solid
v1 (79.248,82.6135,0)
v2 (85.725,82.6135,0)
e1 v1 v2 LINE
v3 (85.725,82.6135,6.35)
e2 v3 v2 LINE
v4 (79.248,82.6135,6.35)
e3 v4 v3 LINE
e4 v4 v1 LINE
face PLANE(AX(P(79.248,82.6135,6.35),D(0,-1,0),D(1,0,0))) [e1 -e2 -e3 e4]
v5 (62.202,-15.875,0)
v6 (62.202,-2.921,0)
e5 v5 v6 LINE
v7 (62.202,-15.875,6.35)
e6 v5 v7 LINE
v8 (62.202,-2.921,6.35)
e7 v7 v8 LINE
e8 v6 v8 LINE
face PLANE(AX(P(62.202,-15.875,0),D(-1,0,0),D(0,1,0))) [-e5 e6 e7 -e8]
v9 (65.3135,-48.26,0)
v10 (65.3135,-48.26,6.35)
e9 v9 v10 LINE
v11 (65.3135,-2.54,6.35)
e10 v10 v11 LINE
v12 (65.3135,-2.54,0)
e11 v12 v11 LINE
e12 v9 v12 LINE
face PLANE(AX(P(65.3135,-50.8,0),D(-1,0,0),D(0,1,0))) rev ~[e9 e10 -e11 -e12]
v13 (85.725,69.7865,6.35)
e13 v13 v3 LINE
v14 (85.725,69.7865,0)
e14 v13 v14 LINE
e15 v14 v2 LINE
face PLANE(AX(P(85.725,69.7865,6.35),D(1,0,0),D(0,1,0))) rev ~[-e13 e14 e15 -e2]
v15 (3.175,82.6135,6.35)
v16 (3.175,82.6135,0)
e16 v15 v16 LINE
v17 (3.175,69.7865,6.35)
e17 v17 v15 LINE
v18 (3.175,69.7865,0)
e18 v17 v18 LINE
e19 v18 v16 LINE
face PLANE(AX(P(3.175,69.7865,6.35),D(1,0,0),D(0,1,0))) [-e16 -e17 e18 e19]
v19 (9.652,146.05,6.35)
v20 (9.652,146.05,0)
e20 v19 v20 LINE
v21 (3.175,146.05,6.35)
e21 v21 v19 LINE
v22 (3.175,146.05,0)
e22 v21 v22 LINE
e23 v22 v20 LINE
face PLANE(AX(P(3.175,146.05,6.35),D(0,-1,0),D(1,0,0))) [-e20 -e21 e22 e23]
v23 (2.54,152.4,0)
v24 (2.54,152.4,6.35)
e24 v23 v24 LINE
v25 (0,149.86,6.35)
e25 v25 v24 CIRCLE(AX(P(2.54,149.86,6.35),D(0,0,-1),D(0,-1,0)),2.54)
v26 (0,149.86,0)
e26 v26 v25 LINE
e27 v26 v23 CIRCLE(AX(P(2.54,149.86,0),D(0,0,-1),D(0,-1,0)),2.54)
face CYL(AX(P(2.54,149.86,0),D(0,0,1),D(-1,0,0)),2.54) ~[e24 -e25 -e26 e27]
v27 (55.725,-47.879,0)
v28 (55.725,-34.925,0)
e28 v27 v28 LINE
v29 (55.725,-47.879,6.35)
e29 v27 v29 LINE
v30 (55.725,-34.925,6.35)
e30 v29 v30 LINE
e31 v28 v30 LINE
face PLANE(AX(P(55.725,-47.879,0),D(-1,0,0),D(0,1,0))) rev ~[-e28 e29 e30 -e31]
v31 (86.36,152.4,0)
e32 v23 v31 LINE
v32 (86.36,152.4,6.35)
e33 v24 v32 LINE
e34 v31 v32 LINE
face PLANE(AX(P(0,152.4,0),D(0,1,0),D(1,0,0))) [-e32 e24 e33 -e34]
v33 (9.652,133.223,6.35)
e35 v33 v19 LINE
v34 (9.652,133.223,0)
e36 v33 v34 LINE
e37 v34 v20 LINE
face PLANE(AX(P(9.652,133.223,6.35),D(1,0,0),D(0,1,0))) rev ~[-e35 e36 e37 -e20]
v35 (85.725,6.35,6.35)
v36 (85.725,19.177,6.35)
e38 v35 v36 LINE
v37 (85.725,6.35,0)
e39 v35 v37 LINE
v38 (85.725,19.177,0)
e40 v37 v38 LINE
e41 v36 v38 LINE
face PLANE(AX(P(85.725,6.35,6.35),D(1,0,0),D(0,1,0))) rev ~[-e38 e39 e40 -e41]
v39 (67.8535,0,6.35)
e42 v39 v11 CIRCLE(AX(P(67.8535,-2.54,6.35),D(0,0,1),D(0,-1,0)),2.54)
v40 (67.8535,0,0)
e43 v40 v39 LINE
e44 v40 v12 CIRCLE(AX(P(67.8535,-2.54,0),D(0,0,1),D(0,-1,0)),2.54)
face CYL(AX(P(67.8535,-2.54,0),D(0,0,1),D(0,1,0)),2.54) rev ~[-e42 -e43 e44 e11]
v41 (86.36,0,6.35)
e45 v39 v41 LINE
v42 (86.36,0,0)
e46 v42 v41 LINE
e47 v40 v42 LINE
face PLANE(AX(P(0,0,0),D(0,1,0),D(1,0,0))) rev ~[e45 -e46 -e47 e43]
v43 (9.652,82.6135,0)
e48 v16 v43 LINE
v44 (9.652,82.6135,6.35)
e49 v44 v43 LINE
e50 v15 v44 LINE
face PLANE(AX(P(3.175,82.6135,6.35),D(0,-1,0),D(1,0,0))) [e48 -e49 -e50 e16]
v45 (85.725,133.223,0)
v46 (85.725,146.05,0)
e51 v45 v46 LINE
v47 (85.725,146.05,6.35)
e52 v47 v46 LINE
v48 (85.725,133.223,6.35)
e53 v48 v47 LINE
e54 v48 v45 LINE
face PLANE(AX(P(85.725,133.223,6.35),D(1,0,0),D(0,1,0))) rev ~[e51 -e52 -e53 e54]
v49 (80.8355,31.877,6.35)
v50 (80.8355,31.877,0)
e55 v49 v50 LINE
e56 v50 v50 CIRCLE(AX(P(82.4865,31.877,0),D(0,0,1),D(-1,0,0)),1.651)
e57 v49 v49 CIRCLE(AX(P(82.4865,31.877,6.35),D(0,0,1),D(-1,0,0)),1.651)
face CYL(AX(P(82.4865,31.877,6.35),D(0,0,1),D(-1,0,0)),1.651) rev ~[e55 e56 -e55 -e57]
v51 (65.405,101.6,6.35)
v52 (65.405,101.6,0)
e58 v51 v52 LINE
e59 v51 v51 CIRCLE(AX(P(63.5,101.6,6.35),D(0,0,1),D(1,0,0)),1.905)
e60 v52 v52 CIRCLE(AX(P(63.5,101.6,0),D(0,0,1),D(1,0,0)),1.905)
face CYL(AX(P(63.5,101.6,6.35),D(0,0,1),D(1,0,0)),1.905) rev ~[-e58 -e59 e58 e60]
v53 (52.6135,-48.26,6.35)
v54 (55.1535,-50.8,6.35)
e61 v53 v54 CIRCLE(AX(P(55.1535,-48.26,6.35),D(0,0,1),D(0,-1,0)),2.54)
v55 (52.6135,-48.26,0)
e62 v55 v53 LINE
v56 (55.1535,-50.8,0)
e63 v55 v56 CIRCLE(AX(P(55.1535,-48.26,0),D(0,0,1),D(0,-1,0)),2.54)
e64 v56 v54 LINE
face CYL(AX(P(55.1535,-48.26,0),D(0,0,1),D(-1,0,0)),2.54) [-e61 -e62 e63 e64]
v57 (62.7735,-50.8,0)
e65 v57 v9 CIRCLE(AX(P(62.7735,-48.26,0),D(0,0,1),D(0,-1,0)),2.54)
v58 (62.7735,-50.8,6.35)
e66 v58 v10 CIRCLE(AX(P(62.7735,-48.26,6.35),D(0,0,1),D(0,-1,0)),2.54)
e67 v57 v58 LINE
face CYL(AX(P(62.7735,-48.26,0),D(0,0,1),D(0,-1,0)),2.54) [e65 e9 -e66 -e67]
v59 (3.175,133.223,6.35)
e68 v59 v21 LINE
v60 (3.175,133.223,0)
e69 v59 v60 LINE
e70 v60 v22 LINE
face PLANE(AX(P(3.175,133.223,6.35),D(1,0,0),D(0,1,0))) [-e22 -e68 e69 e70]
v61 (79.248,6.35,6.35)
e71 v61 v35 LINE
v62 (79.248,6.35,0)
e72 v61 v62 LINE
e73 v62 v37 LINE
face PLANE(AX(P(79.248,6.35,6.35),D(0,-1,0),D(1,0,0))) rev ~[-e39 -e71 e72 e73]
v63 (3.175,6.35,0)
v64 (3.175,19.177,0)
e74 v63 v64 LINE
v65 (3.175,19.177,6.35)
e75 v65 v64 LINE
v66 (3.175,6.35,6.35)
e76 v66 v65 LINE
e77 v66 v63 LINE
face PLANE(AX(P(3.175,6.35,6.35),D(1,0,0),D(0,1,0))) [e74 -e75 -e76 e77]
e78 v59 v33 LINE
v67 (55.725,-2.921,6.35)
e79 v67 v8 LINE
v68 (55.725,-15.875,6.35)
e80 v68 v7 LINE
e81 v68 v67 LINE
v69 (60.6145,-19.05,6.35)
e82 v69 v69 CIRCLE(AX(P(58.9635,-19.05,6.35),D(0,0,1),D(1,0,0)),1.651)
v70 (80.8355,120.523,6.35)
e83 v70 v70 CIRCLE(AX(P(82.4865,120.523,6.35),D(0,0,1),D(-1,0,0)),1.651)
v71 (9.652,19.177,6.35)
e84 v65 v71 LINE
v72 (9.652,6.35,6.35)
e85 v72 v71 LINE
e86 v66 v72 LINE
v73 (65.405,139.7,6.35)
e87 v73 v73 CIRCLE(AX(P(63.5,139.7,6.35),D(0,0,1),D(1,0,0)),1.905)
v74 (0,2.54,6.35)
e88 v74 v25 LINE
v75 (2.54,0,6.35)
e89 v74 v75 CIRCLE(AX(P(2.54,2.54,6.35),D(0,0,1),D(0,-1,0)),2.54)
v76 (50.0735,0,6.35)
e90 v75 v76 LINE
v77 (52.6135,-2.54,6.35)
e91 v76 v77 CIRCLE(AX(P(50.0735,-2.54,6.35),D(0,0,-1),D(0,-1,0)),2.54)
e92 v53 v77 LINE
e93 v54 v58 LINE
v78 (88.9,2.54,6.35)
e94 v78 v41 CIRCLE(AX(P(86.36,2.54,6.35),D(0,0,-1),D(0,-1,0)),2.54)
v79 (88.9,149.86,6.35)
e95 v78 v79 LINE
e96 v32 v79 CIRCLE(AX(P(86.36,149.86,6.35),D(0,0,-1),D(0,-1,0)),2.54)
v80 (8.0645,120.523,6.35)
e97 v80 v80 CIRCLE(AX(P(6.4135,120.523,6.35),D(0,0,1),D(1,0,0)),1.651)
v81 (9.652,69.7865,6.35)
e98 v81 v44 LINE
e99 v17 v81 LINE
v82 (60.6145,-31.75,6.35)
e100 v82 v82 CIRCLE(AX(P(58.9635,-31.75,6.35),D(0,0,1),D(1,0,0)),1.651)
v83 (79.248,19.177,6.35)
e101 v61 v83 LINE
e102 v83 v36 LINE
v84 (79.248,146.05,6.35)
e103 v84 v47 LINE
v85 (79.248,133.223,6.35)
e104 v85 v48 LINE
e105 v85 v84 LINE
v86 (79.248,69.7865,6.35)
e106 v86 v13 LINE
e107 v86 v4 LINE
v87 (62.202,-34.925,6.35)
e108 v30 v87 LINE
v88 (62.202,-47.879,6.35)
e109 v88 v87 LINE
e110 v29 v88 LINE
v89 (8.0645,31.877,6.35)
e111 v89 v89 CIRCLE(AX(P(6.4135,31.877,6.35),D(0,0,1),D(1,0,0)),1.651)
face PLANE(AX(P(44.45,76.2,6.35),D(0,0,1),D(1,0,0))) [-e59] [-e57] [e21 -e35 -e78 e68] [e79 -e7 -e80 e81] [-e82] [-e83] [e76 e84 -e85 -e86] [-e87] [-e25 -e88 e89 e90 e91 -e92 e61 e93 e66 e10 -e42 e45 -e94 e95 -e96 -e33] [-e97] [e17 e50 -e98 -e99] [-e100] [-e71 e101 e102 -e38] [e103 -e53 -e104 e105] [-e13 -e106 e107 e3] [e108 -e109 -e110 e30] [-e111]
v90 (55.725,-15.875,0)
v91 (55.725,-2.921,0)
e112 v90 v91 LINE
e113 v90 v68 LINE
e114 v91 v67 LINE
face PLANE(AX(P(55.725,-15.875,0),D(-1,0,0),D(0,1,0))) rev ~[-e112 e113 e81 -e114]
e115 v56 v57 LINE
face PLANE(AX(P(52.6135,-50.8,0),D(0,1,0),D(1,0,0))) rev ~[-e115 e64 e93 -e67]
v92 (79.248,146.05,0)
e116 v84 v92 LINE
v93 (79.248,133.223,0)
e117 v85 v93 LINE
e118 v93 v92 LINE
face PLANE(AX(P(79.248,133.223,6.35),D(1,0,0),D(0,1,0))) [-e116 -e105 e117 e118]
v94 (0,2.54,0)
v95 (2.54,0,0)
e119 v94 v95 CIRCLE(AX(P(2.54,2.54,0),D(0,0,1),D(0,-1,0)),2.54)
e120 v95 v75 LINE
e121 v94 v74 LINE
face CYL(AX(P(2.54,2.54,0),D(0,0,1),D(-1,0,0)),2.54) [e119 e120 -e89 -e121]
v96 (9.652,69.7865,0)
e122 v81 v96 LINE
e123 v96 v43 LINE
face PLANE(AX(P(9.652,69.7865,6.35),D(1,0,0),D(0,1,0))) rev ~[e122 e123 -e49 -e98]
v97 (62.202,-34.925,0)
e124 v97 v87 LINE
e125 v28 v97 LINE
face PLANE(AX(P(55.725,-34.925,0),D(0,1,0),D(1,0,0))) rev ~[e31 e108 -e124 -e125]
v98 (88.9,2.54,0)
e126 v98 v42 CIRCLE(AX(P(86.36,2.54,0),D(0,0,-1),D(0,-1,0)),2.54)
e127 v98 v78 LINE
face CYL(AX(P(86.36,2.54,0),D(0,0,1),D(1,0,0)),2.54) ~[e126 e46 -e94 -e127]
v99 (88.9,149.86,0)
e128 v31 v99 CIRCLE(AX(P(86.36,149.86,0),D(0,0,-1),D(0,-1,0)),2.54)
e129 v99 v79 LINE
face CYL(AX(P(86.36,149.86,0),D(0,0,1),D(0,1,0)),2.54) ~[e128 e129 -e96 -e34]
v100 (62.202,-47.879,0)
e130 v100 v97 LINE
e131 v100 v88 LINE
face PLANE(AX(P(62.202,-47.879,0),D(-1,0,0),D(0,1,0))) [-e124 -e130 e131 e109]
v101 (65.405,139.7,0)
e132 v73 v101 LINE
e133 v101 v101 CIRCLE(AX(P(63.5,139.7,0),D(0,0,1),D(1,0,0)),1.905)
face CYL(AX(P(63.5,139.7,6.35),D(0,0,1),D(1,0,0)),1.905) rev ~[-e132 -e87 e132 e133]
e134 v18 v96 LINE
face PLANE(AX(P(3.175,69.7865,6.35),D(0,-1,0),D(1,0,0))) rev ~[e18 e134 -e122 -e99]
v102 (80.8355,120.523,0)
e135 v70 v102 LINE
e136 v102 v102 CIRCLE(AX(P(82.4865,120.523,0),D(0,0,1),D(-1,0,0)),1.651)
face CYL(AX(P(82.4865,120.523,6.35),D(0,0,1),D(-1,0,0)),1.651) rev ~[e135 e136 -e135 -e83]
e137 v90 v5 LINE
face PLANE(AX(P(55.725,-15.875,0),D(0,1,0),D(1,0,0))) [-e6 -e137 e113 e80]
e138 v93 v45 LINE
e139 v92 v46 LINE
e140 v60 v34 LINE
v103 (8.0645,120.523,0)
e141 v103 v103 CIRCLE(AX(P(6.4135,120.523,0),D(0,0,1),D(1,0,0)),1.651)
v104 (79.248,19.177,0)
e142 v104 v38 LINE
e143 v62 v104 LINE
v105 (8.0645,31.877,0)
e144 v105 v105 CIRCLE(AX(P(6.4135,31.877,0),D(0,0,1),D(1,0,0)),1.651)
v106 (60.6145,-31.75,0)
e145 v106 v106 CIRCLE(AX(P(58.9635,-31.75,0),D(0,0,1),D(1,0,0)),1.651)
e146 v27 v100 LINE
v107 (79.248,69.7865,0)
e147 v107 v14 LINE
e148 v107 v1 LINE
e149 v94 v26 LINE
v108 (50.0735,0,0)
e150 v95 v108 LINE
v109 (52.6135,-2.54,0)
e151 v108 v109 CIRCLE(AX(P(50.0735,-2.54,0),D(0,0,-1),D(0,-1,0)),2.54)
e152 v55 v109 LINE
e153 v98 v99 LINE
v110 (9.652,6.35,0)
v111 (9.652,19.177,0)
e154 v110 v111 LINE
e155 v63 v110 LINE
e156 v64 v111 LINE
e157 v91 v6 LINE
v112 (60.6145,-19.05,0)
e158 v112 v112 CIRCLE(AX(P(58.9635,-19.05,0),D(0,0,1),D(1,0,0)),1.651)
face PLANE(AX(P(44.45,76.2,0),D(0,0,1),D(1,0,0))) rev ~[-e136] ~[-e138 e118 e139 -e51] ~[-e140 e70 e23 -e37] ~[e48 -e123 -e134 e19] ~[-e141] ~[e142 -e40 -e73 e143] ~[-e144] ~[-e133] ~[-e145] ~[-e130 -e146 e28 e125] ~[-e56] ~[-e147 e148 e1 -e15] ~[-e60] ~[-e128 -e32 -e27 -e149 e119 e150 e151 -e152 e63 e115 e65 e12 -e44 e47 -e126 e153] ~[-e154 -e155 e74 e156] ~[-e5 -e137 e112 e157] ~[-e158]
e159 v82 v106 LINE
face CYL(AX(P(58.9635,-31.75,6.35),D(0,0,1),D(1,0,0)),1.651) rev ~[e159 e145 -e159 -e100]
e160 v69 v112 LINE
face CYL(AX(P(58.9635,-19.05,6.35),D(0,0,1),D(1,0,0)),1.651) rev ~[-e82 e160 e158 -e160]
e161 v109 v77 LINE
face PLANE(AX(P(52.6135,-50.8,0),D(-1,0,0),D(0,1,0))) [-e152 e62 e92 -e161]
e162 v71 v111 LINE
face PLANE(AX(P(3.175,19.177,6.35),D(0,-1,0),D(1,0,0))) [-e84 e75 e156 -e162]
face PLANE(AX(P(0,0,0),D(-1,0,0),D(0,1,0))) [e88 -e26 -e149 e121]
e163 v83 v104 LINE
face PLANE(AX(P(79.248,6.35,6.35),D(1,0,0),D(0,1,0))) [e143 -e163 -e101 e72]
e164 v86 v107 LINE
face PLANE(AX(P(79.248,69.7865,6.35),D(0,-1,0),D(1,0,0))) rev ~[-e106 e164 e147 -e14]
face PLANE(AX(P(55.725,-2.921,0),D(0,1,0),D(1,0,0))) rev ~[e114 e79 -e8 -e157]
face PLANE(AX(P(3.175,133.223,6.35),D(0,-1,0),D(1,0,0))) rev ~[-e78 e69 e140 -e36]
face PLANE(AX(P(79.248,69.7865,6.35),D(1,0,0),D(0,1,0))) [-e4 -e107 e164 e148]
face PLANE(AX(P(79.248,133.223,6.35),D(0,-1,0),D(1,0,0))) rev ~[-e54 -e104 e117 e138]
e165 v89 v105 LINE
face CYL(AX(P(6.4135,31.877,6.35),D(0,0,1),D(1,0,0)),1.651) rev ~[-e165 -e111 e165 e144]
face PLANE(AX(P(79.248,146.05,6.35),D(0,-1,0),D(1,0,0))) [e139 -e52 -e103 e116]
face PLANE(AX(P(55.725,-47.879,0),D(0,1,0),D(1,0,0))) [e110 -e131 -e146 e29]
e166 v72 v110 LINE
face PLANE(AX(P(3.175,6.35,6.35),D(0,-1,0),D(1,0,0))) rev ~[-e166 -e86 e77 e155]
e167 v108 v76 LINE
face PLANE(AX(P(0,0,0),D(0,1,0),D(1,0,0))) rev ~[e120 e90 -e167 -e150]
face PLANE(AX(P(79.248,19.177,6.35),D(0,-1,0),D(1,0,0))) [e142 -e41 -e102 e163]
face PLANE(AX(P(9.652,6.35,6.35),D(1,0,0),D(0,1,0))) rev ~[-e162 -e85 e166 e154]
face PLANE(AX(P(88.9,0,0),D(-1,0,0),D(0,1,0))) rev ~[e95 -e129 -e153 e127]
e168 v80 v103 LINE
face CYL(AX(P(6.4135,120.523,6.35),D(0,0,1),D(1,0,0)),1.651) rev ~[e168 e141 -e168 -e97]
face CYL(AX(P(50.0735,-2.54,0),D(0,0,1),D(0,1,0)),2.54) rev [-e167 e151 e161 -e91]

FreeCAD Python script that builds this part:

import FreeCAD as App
import Part
import Sketcher
Q = App.Units.Quantity


def edges_at(feature, points):
    """Names of the edges that pass closest to the given points."""
    edges = feature.Shape.Edges
    near = lambda p: min(range(len(edges)), key=lambda i: edges[i].distToShape(Part.Vertex(*p))[0])
    return sorted({f"Edge{near(p) + 1}" for p in points})


def add_polygon(sketch, points):
    """Adds a closed chain of lines whose ends are joined by coincident constraints."""
    first, n = sketch.GeometryCount, len(points)
    for a, b in zip(points, points[1:] + points[:1]):
        sketch.addGeometry(Part.LineSegment(App.Vector(*a, 0), App.Vector(*b, 0)), False)
    for i in range(n):
        sketch.addConstraint(Sketcher.Constraint("Coincident", first + i, 2, first + (i + 1) % n, 1))

doc = App.newDocument("Part")
body = doc.addObject("PartDesign::Body", "Body")

# Sketch on XY plane
sketch1 = body.newObject("Sketcher::SketchObject", "Sketch")
sketch1.AttachmentSupport = (doc.getObject("XY_Plane"), [""])
sketch1.MapMode = "FlatFace"
add_polygon(sketch1, [(0, 152), (0, 0), (53, 0), (53, -51), (65, -51), (65, 0), (89, 0), (89, 152)])  # lines 0-7
add_polygon(sketch1, [(56, -16), (56, -3), (62, -3), (62, -16)])  # lines 8-11
add_polygon(sketch1, [(62, -48), (56, -48), (56, -35), (62, -35)])  # lines 12-15
sketch1.addConstraint([
    Sketcher.Constraint("Vertical", 0),
    Sketcher.Constraint("Horizontal", 1),
    Sketcher.Constraint("Vertical", 2),
    Sketcher.Constraint("Horizontal", 3),
    Sketcher.Constraint("Vertical", 4),
    Sketcher.Constraint("Horizontal", 5),
    Sketcher.Constraint("Vertical", 6),
    Sketcher.Constraint("Horizontal", 7),
    Sketcher.Constraint("Vertical", 8),
    Sketcher.Constraint("Horizontal", 9),
    Sketcher.Constraint("Vertical", 10),
    Sketcher.Constraint("Horizontal", 11),
    Sketcher.Constraint("Horizontal", 12),
    Sketcher.Constraint("Vertical", 13),
    Sketcher.Constraint("Horizontal", 14),
    Sketcher.Constraint("Vertical", 15),
    Sketcher.Constraint("Coincident", 0, 2, -1, 1),
    Sketcher.Constraint("PointOnObject", 4, 2, -1),
    Sketcher.Constraint("Vertical", 11, 2, 12, 2),
    Sketcher.Constraint("Vertical", 10, 2, 14, 2),
    Sketcher.Constraint("Equal", 10, 13),
    Sketcher.Constraint("DistanceY", 0, 2, 0, 1, Q("6 in")),
    Sketcher.Constraint("DistanceY", 2, 2, 2, 1, Q("2 in")),
    Sketcher.Constraint("DistanceX", 3, 1, 3, 2, Q("0.5 in")),
    Sketcher.Constraint("DistanceX", 7, 2, 7, 1, Q("3.5 in")),
    Sketcher.Constraint("DistanceY", 8, 1, 8, 2, Q("0.51 in")),
    Sketcher.Constraint("DistanceX", 9, 1, 9, 2, Q("0.255 in")),
    Sketcher.Constraint("DistanceY", 12, 2, 11, 2, Q("1.26 in")),
    Sketcher.Constraint("DistanceY", 8, 2, -1, 1, Q("0.115 in")),
    Sketcher.Constraint("DistanceX", 1, 1, 1, 2, Q("52.6135 mm")),
    Sketcher.Constraint("DistanceX", 1, 2, 8, 2, Q("0.1225 in")),
])
pad1 = body.newObject("PartDesign::Pad", "Pad")
pad1.Profile = sketch1
pad1.Length = Q("0.25 in")

# Sketch on XY plane
sketch2 = body.newObject("Sketcher::SketchObject", "Sketch001")
sketch2.AttachmentSupport = (doc.getObject("XY_Plane"), [""])
sketch2.MapMode = "FlatFace"
sketch2.AttachmentOffset = App.Placement(App.Vector(0, 0, 0.25 * 25.4), App.Rotation())
add_polygon(sketch2, [(3.2, 146.1), (3.2, 133.2), (9.7, 133.2), (9.7, 146.1)])  # lines 0-3
add_polygon(sketch2, [(3.2, 19.2), (3.2, 6.3), (9.7, 6.3), (9.7, 19.2)])  # lines 4-7
add_polygon(sketch2, [(79.2, 146.1), (79.2, 133.2), (85.7, 133.2), (85.7, 146.1)])  # lines 8-11
sketch2.addGeometry(Part.Circle(App.Vector(6.4, 120.5, 0), App.Vector(0, 0, 1), 1.7), False)  # 12
add_polygon(sketch2, [(3.2, 82.6), (3.2, 69.8), (9.7, 69.8), (9.7, 82.6)])  # lines 13-16
sketch2.addGeometry(Part.Circle(App.Vector(6.4, 31.9, 0), App.Vector(0, 0, 1), 1.7), False)  # 17
add_polygon(sketch2, [(79.2, 19.2), (79.2, 6.3), (85.7, 6.3), (85.7, 19.2)])  # lines 18-21
sketch2.addGeometry(Part.Circle(App.Vector(82.5, 31.9, 0), App.Vector(0, 0, 1), 1.7), False)  # 22
sketch2.addGeometry(Part.Circle(App.Vector(82.5, 120.5, 0), App.Vector(0, 0, 1), 1.7), False)  # 23
add_polygon(sketch2, [(79.2, 82.6), (79.2, 69.8), (85.7, 69.8), (85.7, 82.6)])  # lines 24-27
sketch2.addConstraint([
    Sketcher.Constraint("Vertical", 0),
    Sketcher.Constraint("Horizontal", 1),
    Sketcher.Constraint("Vertical", 2),
    Sketcher.Constraint("Horizontal", 3),
    Sketcher.Constraint("Vertical", 4),
    Sketcher.Constraint("Horizontal", 5),
    Sketcher.Constraint("Vertical", 6),
    Sketcher.Constraint("Horizontal", 7),
    Sketcher.Constraint("Vertical", 8),
    Sketcher.Constraint("Horizontal", 9),
    Sketcher.Constraint("Vertical", 10),
    Sketcher.Constraint("Horizontal", 11),
    Sketcher.Constraint("Vertical", 13),
    Sketcher.Constraint("Horizontal", 14),
    Sketcher.Constraint("Vertical", 15),
    Sketcher.Constraint("Horizontal", 16),
    Sketcher.Constraint("Vertical", 18),
    Sketcher.Constraint("Horizontal", 19),
    Sketcher.Constraint("Vertical", 20),
    Sketcher.Constraint("Horizontal", 21),
    Sketcher.Constraint("Vertical", 24),
    Sketcher.Constraint("Horizontal", 25),
    Sketcher.Constraint("Vertical", 26),
    Sketcher.Constraint("Horizontal", 27),
    Sketcher.Constraint("Equal", 12, 17),
    Sketcher.Constraint("Equal", 17, 22),
    Sketcher.Constraint("Equal", 22, 23),
    Sketcher.Constraint("Horizontal", 17, 3, 22, 3),
    Sketcher.Constraint("Horizontal", 12, 3, 23, 3),
    Sketcher.Constraint("Horizontal", 1, 2, 8, 2),
    Sketcher.Constraint("Horizontal", 3, 2, 10, 2),
    Sketcher.Constraint("Horizontal", 5, 2, 18, 2),
    Sketcher.Constraint("Horizontal", 7, 2, 20, 2),
    Sketcher.Constraint("Horizontal", 14, 2, 24, 2),
    Sketcher.Constraint("Horizontal", 16, 2, 26, 2),
    Sketcher.Constraint("Vertical", 12, 3, 17, 3),
    Sketcher.Constraint("Vertical", 22, 3, 23, 3),
    Sketcher.Constraint("Vertical", 3, 2, 4, 2),
    Sketcher.Constraint("Vertical", 2, 2, 5, 2),
    Sketcher.Constraint("Vertical", 7, 2, 13, 2),
    Sketcher.Constraint("Vertical", 6, 2, 14, 2),
    Sketcher.Constraint("Vertical", 11, 2, 18, 2),
    Sketcher.Constraint("Vertical", 10, 2, 19, 2),
    Sketcher.Constraint("Vertical", 21, 2, 24, 2),
    Sketcher.Constraint("Vertical", 20, 2, 25, 2),
    Sketcher.Constraint("Equal", 7, 9),
    Sketcher.Constraint("Equal", 2, 4),
    Sketcher.Constraint("Equal", 10, 13),
    Sketcher.Constraint("Diameter", 12, Q("0.13 in")),
    Sketcher.Constraint("DistanceY", 12, 3, 0, 2, Q("0.5 in")),
    Sketcher.Constraint("DistanceY", 6, 2, 17, 3, Q("0.5 in")),
    Sketcher.Constraint("DistanceX", 1, 1, 1, 2, Q("0.255 in")),
    Sketcher.Constraint("DistanceY", 0, 2, 0, 1, Q("0.505 in")),
    Sketcher.Constraint("DistanceX", -1, 1, 1, 2, Q("0.38 in")),
    Sketcher.Constraint("DistanceY", -1, 1, 2, 2, Q("5.75 in")),
    Sketcher.Constraint("DistanceY", -1, 1, 4, 2, Q("0.25 in")),
    Sketcher.Constraint("DistanceX", -1, 1, 8, 2, Q("3.12 in")),
    Sketcher.Constraint("DistanceX", 17, 3, 22, 3, Q("2.995 in")),
    Sketcher.Constraint("DistanceX", -1, 1, 12, 3, Q("0.2525 in")),
    Sketcher.Constraint("DistanceY", -1, 1, 13, 2, Q("2.7475 in")),
])
pocket1 = body.newObject("PartDesign::Pocket", "Pocket")
pocket1.Profile = sketch2
pocket1.Length = Q("0.25 in")

# Sketch on XY plane
sketch3 = body.newObject("Sketcher::SketchObject", "Sketch002")
sketch3.AttachmentSupport = (doc.getObject("XY_Plane"), [""])
sketch3.MapMode = "FlatFace"
sketch3.AttachmentOffset = App.Placement(App.Vector(0, 0, 0.25 * 25.4), App.Rotation())
sketch3.addGeometry([
    Part.Circle(App.Vector(59, -19.1, 0), App.Vector(0, 0, 1), 1.7),
    Part.Circle(App.Vector(59, -31.8, 0), App.Vector(0, 0, 1), 1.7),
], False)
sketch3.addConstraint([
    Sketcher.Constraint("Equal", 0, 1),
    Sketcher.Constraint("Vertical", 0, 3, 1, 3),
    Sketcher.Constraint("Diameter", 0, Q("0.13 in")),
    Sketcher.Constraint("DistanceY", 1, 3, 0, 3, Q("0.5 in")),
    Sketcher.Constraint("DistanceY", 0, 3, -1, 1, Q("0.75 in")),
    Sketcher.Constraint("DistanceX", -1, 1, 0, 3, Q("58.9635 mm")),
])
pocket2 = body.newObject("PartDesign::Pocket", "Pocket001")
pocket2.Profile = sketch3
pocket2.Length = Q("0.25 in")
doc.recompute()

fillet = body.newObject("PartDesign::Fillet", "Fillet")
fillet.Base = (pocket2, edges_at(pocket2, [
    (0, 0, 3.175),
    (0, 152.4, 3.175),
    (88.9, 152.4, 3.175),
    (88.9, 0, 3.175),
    (65.314, 0, 3.175),
    (65.314, -50.8, 3.175),
    (52.614, -50.8, 3.175),
    (52.614, 0, 3.175),
]))
fillet.Radius = Q("0.1 in")

# Sketch on XY plane
sketch4 = body.newObject("Sketcher::SketchObject", "Sketch003")
sketch4.AttachmentSupport = (doc.getObject("XY_Plane"), [""])
sketch4.MapMode = "FlatFace"
sketch4.AttachmentOffset = App.Placement(App.Vector(0, 0, 0.25 * 25.4), App.Rotation())
sketch4.addGeometry([
    Part.Circle(App.Vector(63.5, 139.7, 0), App.Vector(0, 0, 1), 1.9),
    Part.Circle(App.Vector(63.5, 101.6, 0), App.Vector(0, 0, 1), 1.9),
], False)
sketch4.addConstraint([
    Sketcher.Constraint("Equal", 0, 1),
    Sketcher.Constraint("Vertical", 0, 3, 1, 3),
    Sketcher.Constraint("Diameter", 0, Q("0.15 in")),
    Sketcher.Constraint("DistanceY", -1, 1, 1, 3, Q("4 in")),
    Sketcher.Constraint("DistanceX", -1, 1, 0, 3, Q("2.5 in")),
    Sketcher.Constraint("DistanceY", -1, 1, 0, 3, Q("5.5 in")),
])
pocket3 = body.newObject("PartDesign::Pocket", "Pocket002")
pocket3.Profile = sketch4
pocket3.Length = Q("0.25 in")

doc.recompute()
